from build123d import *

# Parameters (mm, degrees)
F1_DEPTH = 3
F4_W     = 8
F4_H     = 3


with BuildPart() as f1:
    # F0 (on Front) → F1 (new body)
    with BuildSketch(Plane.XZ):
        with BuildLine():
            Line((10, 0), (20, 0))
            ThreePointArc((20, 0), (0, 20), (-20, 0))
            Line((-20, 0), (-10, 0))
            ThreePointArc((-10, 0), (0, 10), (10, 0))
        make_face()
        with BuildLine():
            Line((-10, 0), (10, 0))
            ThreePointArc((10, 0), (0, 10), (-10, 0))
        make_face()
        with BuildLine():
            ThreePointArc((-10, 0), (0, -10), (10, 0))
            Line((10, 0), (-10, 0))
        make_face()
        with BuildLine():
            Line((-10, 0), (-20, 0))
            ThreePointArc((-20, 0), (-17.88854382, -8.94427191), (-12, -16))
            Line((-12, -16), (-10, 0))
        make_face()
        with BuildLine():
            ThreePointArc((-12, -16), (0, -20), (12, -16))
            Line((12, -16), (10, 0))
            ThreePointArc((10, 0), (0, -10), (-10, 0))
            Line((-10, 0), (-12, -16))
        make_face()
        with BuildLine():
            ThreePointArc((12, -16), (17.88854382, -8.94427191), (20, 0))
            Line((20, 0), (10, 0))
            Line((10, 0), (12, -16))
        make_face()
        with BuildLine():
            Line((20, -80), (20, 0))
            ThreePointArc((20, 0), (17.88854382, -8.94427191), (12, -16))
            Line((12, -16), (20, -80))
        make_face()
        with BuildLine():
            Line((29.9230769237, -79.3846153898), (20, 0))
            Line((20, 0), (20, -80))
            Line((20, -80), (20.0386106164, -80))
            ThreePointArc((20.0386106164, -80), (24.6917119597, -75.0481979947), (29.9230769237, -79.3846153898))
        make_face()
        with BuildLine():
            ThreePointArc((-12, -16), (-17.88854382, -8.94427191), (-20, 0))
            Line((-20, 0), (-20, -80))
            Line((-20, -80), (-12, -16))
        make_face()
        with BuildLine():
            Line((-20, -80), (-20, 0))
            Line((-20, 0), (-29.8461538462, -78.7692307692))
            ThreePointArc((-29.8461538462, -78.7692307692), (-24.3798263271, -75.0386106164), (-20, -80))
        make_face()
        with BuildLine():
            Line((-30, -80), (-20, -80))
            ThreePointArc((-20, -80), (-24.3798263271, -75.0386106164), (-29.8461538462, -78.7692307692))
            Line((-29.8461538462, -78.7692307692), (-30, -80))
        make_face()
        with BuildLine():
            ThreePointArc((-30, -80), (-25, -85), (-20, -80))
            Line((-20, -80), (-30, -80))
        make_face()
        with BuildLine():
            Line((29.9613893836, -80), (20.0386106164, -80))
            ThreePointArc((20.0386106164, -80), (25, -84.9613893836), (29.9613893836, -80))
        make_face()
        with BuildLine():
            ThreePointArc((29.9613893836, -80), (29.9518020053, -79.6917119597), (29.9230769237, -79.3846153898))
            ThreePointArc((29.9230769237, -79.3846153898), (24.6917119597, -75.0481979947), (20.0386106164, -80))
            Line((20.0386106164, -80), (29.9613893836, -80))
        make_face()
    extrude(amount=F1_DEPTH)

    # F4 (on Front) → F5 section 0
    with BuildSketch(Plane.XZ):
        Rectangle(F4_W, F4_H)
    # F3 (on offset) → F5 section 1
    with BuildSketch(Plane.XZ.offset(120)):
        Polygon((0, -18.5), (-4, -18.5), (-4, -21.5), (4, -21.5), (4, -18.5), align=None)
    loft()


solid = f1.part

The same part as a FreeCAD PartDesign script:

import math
import FreeCAD as App
import Part
import Sketcher

doc = App.newDocument("Part")
params = doc.addObject("Spreadsheet::Sheet", "Params")
for row, (alias, value) in enumerate([
    ("sketch1_radius", "20 mm"),
    ("sketch1_radius2", "5 mm"),
    ("pad1_length", "3 mm"),
    ("sketch2_width", "8 mm"),
    ("sketch2_height", "3 mm"),
    ("sketch3_width", "8 mm"),
    ("sketch3_height", "3 mm"),
], start=1):
    params.set(f"A{row}", alias)
    params.set(f"B{row}", "=" + value)
    params.setAlias(f"B{row}", alias)

body = doc.addObject("PartDesign::Body", "Body")

sketch1 = body.newObject("Sketcher::SketchObject", "Sketch")
sketch1.AttachmentSupport = (doc.getObject("XZ_Plane"), [""])
sketch1.MapMode = "FlatFace"
sketch1.addGeometry([
    Part.ArcOfCircle(Part.Circle(App.Vector(0, 0, 0), App.Vector(0, 0, 1), 20), math.radians(0), math.radians(180)),
    Part.LineSegment(App.Vector(-20, 0, 0), App.Vector(-29.846154, -78.769231, 0)),
    Part.LineSegment(App.Vector(-29.846154, -78.769231, 0), App.Vector(-30, -80, 0)),
    Part.ArcOfCircle(Part.Circle(App.Vector(-25, -80, 0), App.Vector(0, 0, 1), 5), math.radians(180), math.radians(360)),
    Part.LineSegment(App.Vector(-20, -80, 0), App.Vector(-12, -16, 0)),
    Part.ArcOfCircle(Part.Circle(App.Vector(0, 0, 0), App.Vector(0, 0, 1), 20), math.radians(-126.869898), math.radians(-53.130102)),
    Part.LineSegment(App.Vector(12, -16, 0), App.Vector(20, -80, 0)),
    Part.LineSegment(App.Vector(20, -80, 0), App.Vector(20.038611, -80, 0)),
    Part.ArcOfCircle(Part.Circle(App.Vector(25, -80, 0), App.Vector(0, 0, 1), 4.961389), math.radians(180), math.radians(360)),
    Part.ArcOfCircle(Part.Circle(App.Vector(25, -80, 0), App.Vector(0, 0, 1), 4.961389), math.radians(0), math.radians(7.125016)),
    Part.LineSegment(App.Vector(29.923077, -79.384615, 0), App.Vector(20, 0, 0)),
], False)
sketch1.addConstraint([
    Sketcher.Constraint("Coincident", 0, 2, 1, 1),
    Sketcher.Constraint("Coincident", 1, 2, 2, 1),
    Sketcher.Constraint("Coincident", 2, 2, 3, 1),
    Sketcher.Constraint("Coincident", 3, 2, 4, 1),
    Sketcher.Constraint("Coincident", 4, 2, 5, 1),
    Sketcher.Constraint("Coincident", 5, 2, 6, 1),
    Sketcher.Constraint("Coincident", 6, 2, 7, 1),
    Sketcher.Constraint("Coincident", 7, 2, 8, 1),
    Sketcher.Constraint("Tangent", 8, 2, 9, 1),
    Sketcher.Constraint("Tangent", 9, 2, 10, 1),
    Sketcher.Constraint("Coincident", 10, 2, 0, 1),
    Sketcher.Constraint("Horizontal", 7),
    Sketcher.Constraint("Coincident", 0, 3, -1, 1),
    Sketcher.Constraint("Coincident", 5, 3, -1, 1),
    Sketcher.Constraint("Equal", 0, 5),
    Sketcher.Constraint("Equal", 8, 9),
    Sketcher.Constraint("Symmetric", 3, 3, 8, 3, -2),
    Sketcher.Constraint("Symmetric", 3, 2, 6, 2, -2),
    Sketcher.Constraint("PointOnObject", 0, 2, -1),
    Sketcher.Constraint("PointOnObject", 10, 2, -1),
    Sketcher.Constraint("Parallel", 1, 2),
    Sketcher.Constraint("Parallel", 2, 4),
    Sketcher.Constraint("Parallel", 6, 10),
    Sketcher.Constraint("Horizontal", 9, 3, 2, 2),
    Sketcher.Constraint("Horizontal", 2, 2, 3, 2),
    Sketcher.Constraint("Horizontal", 4, 2, 5, 2),
    Sketcher.Constraint("Horizontal", 7, 2, 8, 2),
    Sketcher.Constraint("Vertical", 0, 2, 3, 2),
    Sketcher.Constraint("Radius", 0, 20.0),
    Sketcher.Constraint("Radius", 3, 5.0),
    Sketcher.Constraint("DistanceY", 3, 3, -1, 1, 80.0),
    Sketcher.Constraint("Distance", 1, 79.38223),
])
sketch1.setExpression("Constraints[28]", "Params.sketch1_radius")
sketch1.setExpression("Constraints[29]", "Params.sketch1_radius2")
pad1 = body.newObject("PartDesign::Pad", "Pad")
pad1.Profile = sketch1
pad1.setExpression("Length", "Params.pad1_length")

sketch2 = body.newObject("Sketcher::SketchObject", "Sketch001")
sketch2.AttachmentSupport = (doc.getObject("XZ_Plane"), [""])
sketch2.MapMode = "FlatFace"
sketch2.addGeometry([
    Part.LineSegment(App.Vector(-4, 1.5, 0), App.Vector(-4, -1.5, 0)),
    Part.LineSegment(App.Vector(-4, -1.5, 0), App.Vector(4, -1.5, 0)),
    Part.LineSegment(App.Vector(4, -1.5, 0), App.Vector(4, 1.5, 0)),
    Part.LineSegment(App.Vector(4, 1.5, 0), App.Vector(-4, 1.5, 0)),
], False)
sketch2.addConstraint([
    Sketcher.Constraint("Coincident", 0, 2, 1, 1),
    Sketcher.Constraint("Coincident", 1, 2, 2, 1),
    Sketcher.Constraint("Coincident", 2, 2, 3, 1),
    Sketcher.Constraint("Coincident", 3, 2, 0, 1),
    Sketcher.Constraint("Vertical", 0),
    Sketcher.Constraint("Horizontal", 1),
    Sketcher.Constraint("Vertical", 2),
    Sketcher.Constraint("Horizontal", 3),
    Sketcher.Constraint("Symmetric", 0, 2, 2, 2, -1, 1),
    Sketcher.Constraint("DistanceX", 1, 1, 1, 2, 8.0),
    Sketcher.Constraint("DistanceY", 0, 2, 0, 1, 3.0),
])
sketch2.setExpression("Constraints[9]", "Params.sketch2_width")
sketch2.setExpression("Constraints[10]", "Params.sketch2_height")

sketch3 = body.newObject("Sketcher::SketchObject", "Sketch002")
sketch3.AttachmentSupport = (doc.getObject("XZ_Plane"), [""])
sketch3.MapMode = "FlatFace"
sketch3.AttachmentOffset = App.Placement(App.Vector(0, 0, 120), App.Rotation())
sketch3.addGeometry([
    Part.LineSegment(App.Vector(-4, -18.5, 0), App.Vector(-4, -21.5, 0)),
    Part.LineSegment(App.Vector(-4, -21.5, 0), App.Vector(4, -21.5, 0)),
    Part.LineSegment(App.Vector(4, -21.5, 0), App.Vector(4, -18.5, 0)),
    Part.LineSegment(App.Vector(4, -18.5, 0), App.Vector(-4, -18.5, 0)),
], False)
sketch3.addConstraint([
    Sketcher.Constraint("Coincident", 0, 2, 1, 1),
    Sketcher.Constraint("Coincident", 1, 2, 2, 1),
    Sketcher.Constraint("Coincident", 2, 2, 3, 1),
    Sketcher.Constraint("Coincident", 3, 2, 0, 1),
    Sketcher.Constraint("Vertical", 0),
    Sketcher.Constraint("Horizontal", 1),
    Sketcher.Constraint("Vertical", 2),
    Sketcher.Constraint("Horizontal", 3),
    Sketcher.Constraint("DistanceX", 1, 1, 1, 2, 8.0),
    Sketcher.Constraint("DistanceY", 0, 2, 0, 1, 3.0),
    Sketcher.Constraint("DistanceX", 0, 2, -1, 1, 4.0),
    Sketcher.Constraint("DistanceY", 0, 2, -1, 1, 21.5),
])
sketch3.setExpression("Constraints[8]", "Params.sketch3_width")
sketch3.setExpression("Constraints[9]", "Params.sketch3_height")

additiveloft = body.newObject("PartDesign::AdditiveLoft", "AdditiveLoft")
additiveloft.Profile = sketch2
additiveloft.Sections = [sketch3]

doc.recompute()
